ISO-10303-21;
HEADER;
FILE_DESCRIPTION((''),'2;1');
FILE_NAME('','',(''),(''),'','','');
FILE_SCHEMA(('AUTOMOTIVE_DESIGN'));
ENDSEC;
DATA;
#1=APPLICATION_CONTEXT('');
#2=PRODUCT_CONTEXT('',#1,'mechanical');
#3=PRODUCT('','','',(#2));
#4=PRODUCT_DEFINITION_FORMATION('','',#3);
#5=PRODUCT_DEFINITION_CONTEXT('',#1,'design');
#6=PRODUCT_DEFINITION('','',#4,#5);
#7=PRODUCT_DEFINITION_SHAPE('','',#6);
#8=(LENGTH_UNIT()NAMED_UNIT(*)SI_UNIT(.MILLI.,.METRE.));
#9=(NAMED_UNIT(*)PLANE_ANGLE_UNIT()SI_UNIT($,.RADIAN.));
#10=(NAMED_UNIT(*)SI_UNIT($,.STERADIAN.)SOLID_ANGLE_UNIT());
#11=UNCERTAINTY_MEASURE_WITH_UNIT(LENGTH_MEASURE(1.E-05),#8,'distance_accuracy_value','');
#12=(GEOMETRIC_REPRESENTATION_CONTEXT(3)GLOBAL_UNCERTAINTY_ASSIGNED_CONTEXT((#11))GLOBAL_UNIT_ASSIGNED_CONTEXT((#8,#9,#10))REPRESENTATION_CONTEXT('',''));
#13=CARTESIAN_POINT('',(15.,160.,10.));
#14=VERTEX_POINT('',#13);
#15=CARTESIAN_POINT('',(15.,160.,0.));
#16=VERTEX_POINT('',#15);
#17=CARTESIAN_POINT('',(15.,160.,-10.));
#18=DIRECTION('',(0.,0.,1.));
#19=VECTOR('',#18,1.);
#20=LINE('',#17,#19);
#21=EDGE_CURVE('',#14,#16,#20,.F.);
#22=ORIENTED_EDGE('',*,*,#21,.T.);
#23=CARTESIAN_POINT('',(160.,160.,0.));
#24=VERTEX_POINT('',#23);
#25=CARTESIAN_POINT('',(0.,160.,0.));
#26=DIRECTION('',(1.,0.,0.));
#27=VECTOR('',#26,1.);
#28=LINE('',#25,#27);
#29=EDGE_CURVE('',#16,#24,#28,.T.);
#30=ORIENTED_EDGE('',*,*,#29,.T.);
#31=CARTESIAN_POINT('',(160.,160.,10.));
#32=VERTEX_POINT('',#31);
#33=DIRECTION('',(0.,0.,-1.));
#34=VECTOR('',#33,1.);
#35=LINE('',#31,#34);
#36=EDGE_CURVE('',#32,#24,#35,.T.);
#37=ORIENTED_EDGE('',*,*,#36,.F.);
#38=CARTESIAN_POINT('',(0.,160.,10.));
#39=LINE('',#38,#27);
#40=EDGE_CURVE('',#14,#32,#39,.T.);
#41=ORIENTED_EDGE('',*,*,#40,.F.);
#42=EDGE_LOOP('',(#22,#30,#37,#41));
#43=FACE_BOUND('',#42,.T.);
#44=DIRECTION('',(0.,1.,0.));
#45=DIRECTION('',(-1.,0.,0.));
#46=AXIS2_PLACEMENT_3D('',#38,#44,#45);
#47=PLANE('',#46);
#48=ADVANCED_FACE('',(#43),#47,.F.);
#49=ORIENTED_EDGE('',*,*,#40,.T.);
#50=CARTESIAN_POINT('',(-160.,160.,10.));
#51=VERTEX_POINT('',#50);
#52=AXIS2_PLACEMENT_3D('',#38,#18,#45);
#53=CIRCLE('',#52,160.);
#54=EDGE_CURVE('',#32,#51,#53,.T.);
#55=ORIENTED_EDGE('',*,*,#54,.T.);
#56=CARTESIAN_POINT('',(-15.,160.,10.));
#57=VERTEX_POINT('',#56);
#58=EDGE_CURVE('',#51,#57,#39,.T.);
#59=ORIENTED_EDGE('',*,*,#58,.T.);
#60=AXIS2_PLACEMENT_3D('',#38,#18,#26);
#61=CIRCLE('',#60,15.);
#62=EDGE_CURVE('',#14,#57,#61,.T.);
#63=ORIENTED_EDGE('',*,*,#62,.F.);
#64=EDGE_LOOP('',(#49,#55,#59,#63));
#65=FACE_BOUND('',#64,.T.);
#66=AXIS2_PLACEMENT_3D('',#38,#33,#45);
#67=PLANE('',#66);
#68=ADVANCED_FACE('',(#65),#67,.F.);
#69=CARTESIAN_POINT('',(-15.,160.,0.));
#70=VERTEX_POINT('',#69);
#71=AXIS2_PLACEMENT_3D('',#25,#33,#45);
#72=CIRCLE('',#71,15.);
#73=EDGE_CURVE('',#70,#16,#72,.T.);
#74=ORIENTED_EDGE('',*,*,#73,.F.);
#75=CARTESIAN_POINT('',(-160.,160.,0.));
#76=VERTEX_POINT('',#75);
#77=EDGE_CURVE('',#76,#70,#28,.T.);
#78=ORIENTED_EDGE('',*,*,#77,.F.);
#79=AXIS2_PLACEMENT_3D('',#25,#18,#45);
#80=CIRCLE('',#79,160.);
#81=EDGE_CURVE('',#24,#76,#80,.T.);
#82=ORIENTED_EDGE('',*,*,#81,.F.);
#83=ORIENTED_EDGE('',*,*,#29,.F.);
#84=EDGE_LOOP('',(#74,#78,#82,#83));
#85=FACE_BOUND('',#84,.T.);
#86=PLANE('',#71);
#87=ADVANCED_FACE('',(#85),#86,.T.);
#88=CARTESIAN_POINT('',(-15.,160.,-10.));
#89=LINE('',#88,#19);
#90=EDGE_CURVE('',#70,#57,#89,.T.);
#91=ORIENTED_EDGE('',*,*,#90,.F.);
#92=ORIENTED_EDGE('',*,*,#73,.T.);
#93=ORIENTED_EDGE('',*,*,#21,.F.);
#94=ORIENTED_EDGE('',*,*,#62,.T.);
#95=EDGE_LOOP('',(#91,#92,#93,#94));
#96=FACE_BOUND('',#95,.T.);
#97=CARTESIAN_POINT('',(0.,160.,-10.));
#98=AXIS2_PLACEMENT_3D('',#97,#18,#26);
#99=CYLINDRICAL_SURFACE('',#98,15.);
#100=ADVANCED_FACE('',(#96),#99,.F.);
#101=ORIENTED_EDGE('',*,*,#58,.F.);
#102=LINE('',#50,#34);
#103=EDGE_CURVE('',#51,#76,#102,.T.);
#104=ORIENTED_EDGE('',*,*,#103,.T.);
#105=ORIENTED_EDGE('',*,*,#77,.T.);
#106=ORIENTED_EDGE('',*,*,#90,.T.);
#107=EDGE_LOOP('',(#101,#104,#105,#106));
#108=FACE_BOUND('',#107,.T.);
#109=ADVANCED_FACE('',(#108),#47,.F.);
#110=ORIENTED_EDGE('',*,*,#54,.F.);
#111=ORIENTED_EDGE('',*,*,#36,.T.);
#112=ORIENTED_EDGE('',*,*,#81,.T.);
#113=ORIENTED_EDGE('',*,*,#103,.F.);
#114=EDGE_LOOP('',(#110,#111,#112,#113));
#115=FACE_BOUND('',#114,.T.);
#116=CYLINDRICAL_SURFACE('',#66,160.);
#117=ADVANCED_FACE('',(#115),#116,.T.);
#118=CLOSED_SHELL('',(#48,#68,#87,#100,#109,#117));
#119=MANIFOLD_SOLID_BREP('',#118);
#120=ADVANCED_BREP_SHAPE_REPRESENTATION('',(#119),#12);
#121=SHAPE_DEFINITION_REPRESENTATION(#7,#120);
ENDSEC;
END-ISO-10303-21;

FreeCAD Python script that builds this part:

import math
import FreeCAD as App
import Part
import Sketcher

V = App.Vector

doc = App.newDocument("Part")
params = doc.addObject("Spreadsheet::Sheet", "Params")
for row, (alias, value) in enumerate([
    ("sketch1_radius", "160 mm"),
    ("pad1_length", "10 mm"),
    ("sketch2_diameter", "30 mm"),
    ("pocket1_length", "20 mm"),
], start=1):
    params.set(f"A{row}", alias)
    params.set(f"B{row}", "=" + value)
    params.setAlias(f"B{row}", alias)

body = doc.addObject("PartDesign::Body", "Body")

# Sketch on XY plane
sketch1 = body.newObject("Sketcher::SketchObject", "Sketch")
sketch1.AttachmentSupport = (doc.getObject("XY_Plane"), [""])
sketch1.MapMode = "FlatFace"
sketch1.addGeometry([
    Part.ArcOfCircle(Part.Circle(V(0, 160, 0), V(0, 0, 1), 160), math.radians(0), math.radians(180)),
    Part.LineSegment(V(-160, 160, 0), V(160, 160, 0)),
], False)
sketch1.addConstraint([
    Sketcher.Constraint("Coincident", 0, 1, 1, 2),
    Sketcher.Constraint("Coincident", 1, 1, 0, 2),
    Sketcher.Constraint("Horizontal", 1),
    Sketcher.Constraint("PointOnObject", 0, 3, -2),
    Sketcher.Constraint("Radius", 0, 160.0),
    Sketcher.Constraint("DistanceY", -1, 1, 0, 3, 160.0),
    Sketcher.Constraint("DistanceY", -1, 1, 0, 1, 160.0),
])
sketch1.setExpression("Constraints[4]", "Params.sketch1_radius")
pad1 = body.newObject("PartDesign::Pad", "Pad")
pad1.Profile = sketch1
pad1.setExpression("Length", "Params.pad1_length")

# Sketch on XY plane
sketch2 = body.newObject("Sketcher::SketchObject", "Sketch001")
sketch2.AttachmentSupport = (doc.getObject("XY_Plane"), [""])
sketch2.MapMode = "FlatFace"
sketch2.AttachmentOffset = App.Placement(V(0, 0, 10), App.Rotation())
sketch2.addGeometry(Part.Circle(V(0, 160, 0), V(0, 0, 1), 15), False)
sketch2.addConstraint([
    Sketcher.Constraint("PointOnObject", 0, 3, -2),
    Sketcher.Constraint("Diameter", 0, 30.0),
    Sketcher.Constraint("DistanceY", -1, 1, 0, 3, 160.0),
])
sketch2.setExpression("Constraints[1]", "Params.sketch2_diameter")
pocket1 = body.newObject("PartDesign::Pocket", "Pocket")
pocket1.Profile = sketch2
pocket1.setExpression("Length", "Params.pocket1_length")

doc.recompute()
